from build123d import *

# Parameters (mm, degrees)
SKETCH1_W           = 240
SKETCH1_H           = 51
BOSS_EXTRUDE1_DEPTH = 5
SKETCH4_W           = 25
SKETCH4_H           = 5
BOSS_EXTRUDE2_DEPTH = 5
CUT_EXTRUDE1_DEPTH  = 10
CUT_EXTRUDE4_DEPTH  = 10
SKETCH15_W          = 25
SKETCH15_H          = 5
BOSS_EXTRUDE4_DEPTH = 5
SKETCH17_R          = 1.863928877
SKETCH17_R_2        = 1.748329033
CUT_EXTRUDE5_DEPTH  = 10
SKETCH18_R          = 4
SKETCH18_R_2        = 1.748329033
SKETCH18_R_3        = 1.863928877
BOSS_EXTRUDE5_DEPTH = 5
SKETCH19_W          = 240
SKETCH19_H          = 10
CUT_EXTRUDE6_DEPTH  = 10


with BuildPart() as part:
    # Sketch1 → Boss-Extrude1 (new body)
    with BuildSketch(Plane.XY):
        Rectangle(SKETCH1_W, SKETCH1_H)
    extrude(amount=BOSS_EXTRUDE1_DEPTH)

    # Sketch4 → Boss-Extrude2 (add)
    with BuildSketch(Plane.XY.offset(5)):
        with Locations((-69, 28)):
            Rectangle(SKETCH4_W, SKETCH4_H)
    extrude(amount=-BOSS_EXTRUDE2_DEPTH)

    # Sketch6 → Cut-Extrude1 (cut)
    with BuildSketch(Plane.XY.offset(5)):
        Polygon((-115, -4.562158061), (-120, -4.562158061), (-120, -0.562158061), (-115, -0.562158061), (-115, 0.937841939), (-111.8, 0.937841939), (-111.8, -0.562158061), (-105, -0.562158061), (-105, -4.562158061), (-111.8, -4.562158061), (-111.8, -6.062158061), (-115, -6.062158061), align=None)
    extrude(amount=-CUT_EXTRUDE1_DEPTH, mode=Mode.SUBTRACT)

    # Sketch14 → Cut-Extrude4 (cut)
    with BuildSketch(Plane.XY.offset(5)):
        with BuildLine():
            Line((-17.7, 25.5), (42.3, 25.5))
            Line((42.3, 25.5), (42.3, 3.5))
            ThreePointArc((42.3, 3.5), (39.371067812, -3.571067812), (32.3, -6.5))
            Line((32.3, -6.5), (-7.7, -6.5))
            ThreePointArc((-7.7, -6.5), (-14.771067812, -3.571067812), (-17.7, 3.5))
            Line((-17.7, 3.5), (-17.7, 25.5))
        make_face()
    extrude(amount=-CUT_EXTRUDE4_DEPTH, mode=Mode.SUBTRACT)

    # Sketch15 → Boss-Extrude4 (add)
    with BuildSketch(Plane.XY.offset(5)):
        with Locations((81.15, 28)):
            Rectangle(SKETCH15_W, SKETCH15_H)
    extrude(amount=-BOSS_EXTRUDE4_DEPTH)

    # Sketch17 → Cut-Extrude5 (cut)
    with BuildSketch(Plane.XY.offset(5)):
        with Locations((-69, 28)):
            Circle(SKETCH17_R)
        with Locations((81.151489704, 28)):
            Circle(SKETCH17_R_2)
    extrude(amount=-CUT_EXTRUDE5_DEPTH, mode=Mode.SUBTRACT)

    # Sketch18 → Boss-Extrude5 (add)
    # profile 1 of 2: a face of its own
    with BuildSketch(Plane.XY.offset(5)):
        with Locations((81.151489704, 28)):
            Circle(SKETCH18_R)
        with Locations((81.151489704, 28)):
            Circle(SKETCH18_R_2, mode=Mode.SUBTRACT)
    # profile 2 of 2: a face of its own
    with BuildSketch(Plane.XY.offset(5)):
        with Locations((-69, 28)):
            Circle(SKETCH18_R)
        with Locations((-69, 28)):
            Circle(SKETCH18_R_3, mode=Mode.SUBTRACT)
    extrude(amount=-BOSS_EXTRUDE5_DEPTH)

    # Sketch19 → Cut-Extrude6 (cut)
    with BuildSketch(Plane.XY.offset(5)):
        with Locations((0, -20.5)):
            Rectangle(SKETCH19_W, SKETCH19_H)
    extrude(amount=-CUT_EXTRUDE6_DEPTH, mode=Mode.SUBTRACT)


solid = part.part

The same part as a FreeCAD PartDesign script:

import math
import FreeCAD as App
import Part
import Sketcher
from FreeCAD import Vector
Q = App.Units.Quantity


def add_polygon(sketch, points):
    """Adds a closed chain of lines whose ends are joined by coincident constraints."""
    first, n = sketch.GeometryCount, len(points)
    for a, b in zip(points, points[1:] + points[:1]):
        sketch.addGeometry(Part.LineSegment(App.Vector(*a, 0), App.Vector(*b, 0)), False)
    for i in range(n):
        sketch.addConstraint(Sketcher.Constraint("Coincident", first + i, 2, first + (i + 1) % n, 1))

doc = App.newDocument("Part")
body = doc.addObject("PartDesign::Body", "Body")

sketch1 = body.newObject("Sketcher::SketchObject", "Sketch")
sketch1.AttachmentSupport = (doc.getObject("XY_Plane"), [""])
sketch1.MapMode = "FlatFace"
add_polygon(sketch1, [(-120, 25.5), (-120, -25.5), (120, -25.5), (120, 25.5)])
sketch1.addConstraint(Sketcher.Constraint("Vertical", 0))
sketch1.addConstraint(Sketcher.Constraint("Horizontal", 1))
sketch1.addConstraint(Sketcher.Constraint("Vertical", 2))
sketch1.addConstraint(Sketcher.Constraint("Horizontal", 3))
sketch1.addConstraint(Sketcher.Constraint("Symmetric", 0, 2, 2, 2, -1, 1))
sketch1.addConstraint(Sketcher.Constraint("DistanceX", 1, 1, 1, 2, Q("240 mm")))
sketch1.addConstraint(Sketcher.Constraint("DistanceY", 0, 2, 0, 1, Q("51 mm")))
pad1 = body.newObject("PartDesign::Pad", "Pad")
pad1.Profile = sketch1
pad1.Length = 5

sketch2 = body.newObject("Sketcher::SketchObject", "Sketch001")
sketch2.AttachmentSupport = (doc.getObject("XY_Plane"), [""])
sketch2.MapMode = "FlatFace"
sketch2.AttachmentOffset = App.Placement(Vector(0, 0, 5), App.Rotation())
add_polygon(sketch2, [(-81.5, 30.5), (-81.5, 25.5), (-56.5, 25.5), (-56.5, 30.5)])
sketch2.addConstraint(Sketcher.Constraint("Vertical", 0))
sketch2.addConstraint(Sketcher.Constraint("Horizontal", 1))
sketch2.addConstraint(Sketcher.Constraint("Vertical", 2))
sketch2.addConstraint(Sketcher.Constraint("Horizontal", 3))
sketch2.addConstraint(Sketcher.Constraint("DistanceX", 1, 1, 1, 2, Q("25 mm")))
sketch2.addConstraint(Sketcher.Constraint("DistanceY", 0, 2, 0, 1, Q("5 mm")))
sketch2.addConstraint(Sketcher.Constraint("DistanceX", 0, 2, -1, 1, Q("81.5 mm")))
sketch2.addConstraint(Sketcher.Constraint("DistanceY", -1, 1, 0, 2, Q("25.5 mm")))
pad2 = body.newObject("PartDesign::Pad", "Pad001")
pad2.Profile = sketch2
pad2.Length = 5
pad2.Reversed = True

sketch3 = body.newObject("Sketcher::SketchObject", "Sketch002")
sketch3.AttachmentSupport = (doc.getObject("XY_Plane"), [""])
sketch3.MapMode = "FlatFace"
sketch3.AttachmentOffset = App.Placement(Vector(0, 0, 5), App.Rotation())
add_polygon(sketch3, [(-120, -4.562158), (-115, -4.562158), (-115, -6.062158), (-111.8, -6.062158), (-111.8, -4.562158), (-105, -4.562158), (-105, -0.562158), (-111.8, -0.562158), (-111.8, 0.937842), (-115, 0.937842), (-115, -0.562158), (-120, -0.562158)])
sketch3.addConstraint(Sketcher.Constraint("Horizontal", 0))
sketch3.addConstraint(Sketcher.Constraint("Vertical", 1))
sketch3.addConstraint(Sketcher.Constraint("Horizontal", 2))
sketch3.addConstraint(Sketcher.Constraint("Vertical", 3))
sketch3.addConstraint(Sketcher.Constraint("Horizontal", 4))
sketch3.addConstraint(Sketcher.Constraint("Vertical", 5))
sketch3.addConstraint(Sketcher.Constraint("Horizontal", 6))
sketch3.addConstraint(Sketcher.Constraint("Vertical", 7))
sketch3.addConstraint(Sketcher.Constraint("Horizontal", 8))
sketch3.addConstraint(Sketcher.Constraint("Vertical", 9))
sketch3.addConstraint(Sketcher.Constraint("Horizontal", 10))
sketch3.addConstraint(Sketcher.Constraint("Vertical", 11))
sketch3.addConstraint(Sketcher.Constraint("Horizontal", 0, 2, 3, 2))
sketch3.addConstraint(Sketcher.Constraint("Horizontal", 6, 2, 9, 2))
sketch3.addConstraint(Sketcher.Constraint("Vertical", 3, 2, 6, 2))
sketch3.addConstraint(Sketcher.Constraint("Vertical", 1, 2, 8, 2))
sketch3.addConstraint(Sketcher.Constraint("Equal", 3, 7))
sketch3.addConstraint(Sketcher.Constraint("DistanceX", 0, 1, 0, 2, Q("5 mm")))
sketch3.addConstraint(Sketcher.Constraint("DistanceY", 5, 1, 5, 2, Q("4 mm")))
sketch3.addConstraint(Sketcher.Constraint("DistanceX", 2, 1, 2, 2, Q("3.2 mm")))
sketch3.addConstraint(Sketcher.Constraint("DistanceX", 4, 1, 4, 2, Q("6.8 mm")))
sketch3.addConstraint(Sketcher.Constraint("DistanceY", 1, 2, 1, 1, Q("1.5 mm")))
sketch3.addConstraint(Sketcher.Constraint("DistanceX", 0, 2, -1, 1, Q("115 mm")))
sketch3.addConstraint(Sketcher.Constraint("DistanceY", 0, 2, -1, 1, Q("4.562158 mm")))
pocket1 = body.newObject("PartDesign::Pocket", "Pocket")
pocket1.Profile = sketch3
pocket1.Length = 10

sketch4 = body.newObject("Sketcher::SketchObject", "Sketch003")
sketch4.AttachmentSupport = (doc.getObject("XY_Plane"), [""])
sketch4.MapMode = "FlatFace"
sketch4.AttachmentOffset = App.Placement(Vector(0, 0, 5), App.Rotation())
sketch4.addGeometry(Part.LineSegment(Vector(42.3, 25.5, 0), Vector(-17.7, 25.5, 0)), False)
sketch4.addGeometry(Part.LineSegment(Vector(-17.7, 25.5, 0), Vector(-17.7, 3.5, 0)), False)
sketch4.addGeometry(Part.ArcOfCircle(Part.Circle(Vector(-7.7, 3.5, 0), Vector(0, 0, 1), 10), math.radians(180), math.radians(270)), False)
sketch4.addGeometry(Part.LineSegment(Vector(-7.7, -6.5, 0), Vector(32.3, -6.5, 0)), False)
sketch4.addGeometry(Part.ArcOfCircle(Part.Circle(Vector(32.3, 3.5, 0), Vector(0, 0, 1), 10), math.radians(-90), math.radians(0)), False)
sketch4.addGeometry(Part.LineSegment(Vector(42.3, 3.5, 0), Vector(42.3, 25.5, 0)), False)
sketch4.addConstraint(Sketcher.Constraint("Coincident", 0, 2, 1, 1))
sketch4.addConstraint(Sketcher.Constraint("Tangent", 1, 2, 2, 1))
sketch4.addConstraint(Sketcher.Constraint("Tangent", 2, 2, 3, 1))
sketch4.addConstraint(Sketcher.Constraint("Tangent", 3, 2, 4, 1))
sketch4.addConstraint(Sketcher.Constraint("Tangent", 4, 2, 5, 1))
sketch4.addConstraint(Sketcher.Constraint("Coincident", 5, 2, 0, 1))
sketch4.addConstraint(Sketcher.Constraint("Horizontal", 0))
sketch4.addConstraint(Sketcher.Constraint("Vertical", 1))
sketch4.addConstraint(Sketcher.Constraint("Horizontal", 3))
sketch4.addConstraint(Sketcher.Constraint("Vertical", 5))
sketch4.addConstraint(Sketcher.Constraint("Equal", 2, 4))
sketch4.addConstraint(Sketcher.Constraint("Radius", 2, Q("10 mm")))
sketch4.addConstraint(Sketcher.Constraint("DistanceX", 0, 2, 0, 1, Q("60 mm")))
sketch4.addConstraint(Sketcher.Constraint("DistanceY", 1, 2, 1, 1, Q("22 mm")))
sketch4.addConstraint(Sketcher.Constraint("DistanceX", 2, 3, -1, 1, Q("7.7 mm")))
sketch4.addConstraint(Sketcher.Constraint("DistanceY", -1, 1, 2, 3, Q("3.5 mm")))
pocket2 = body.newObject("PartDesign::Pocket", "Pocket001")
pocket2.Profile = sketch4
pocket2.Length = 10

sketch5 = body.newObject("Sketcher::SketchObject", "Sketch004")
sketch5.AttachmentSupport = (doc.getObject("XY_Plane"), [""])
sketch5.MapMode = "FlatFace"
sketch5.AttachmentOffset = App.Placement(Vector(0, 0, 5), App.Rotation())
add_polygon(sketch5, [(68.65, 30.5), (68.65, 25.5), (93.65, 25.5), (93.65, 30.5)])
sketch5.addConstraint(Sketcher.Constraint("Vertical", 0))
sketch5.addConstraint(Sketcher.Constraint("Horizontal", 1))
sketch5.addConstraint(Sketcher.Constraint("Vertical", 2))
sketch5.addConstraint(Sketcher.Constraint("Horizontal", 3))
sketch5.addConstraint(Sketcher.Constraint("DistanceX", 1, 1, 1, 2, Q("25 mm")))
sketch5.addConstraint(Sketcher.Constraint("DistanceY", 0, 2, 0, 1, Q("5 mm")))
sketch5.addConstraint(Sketcher.Constraint("DistanceY", -1, 1, 0, 2, Q("25.5 mm")))
sketch5.addConstraint(Sketcher.Constraint("DistanceX", -1, 1, 0, 2, Q("68.65 mm")))
pad3 = body.newObject("PartDesign::Pad", "Pad002")
pad3.Profile = sketch5
pad3.Length = 5
pad3.Reversed = True

sketch6 = body.newObject("Sketcher::SketchObject", "Sketch005")
sketch6.AttachmentSupport = (doc.getObject("XY_Plane"), [""])
sketch6.MapMode = "FlatFace"
sketch6.AttachmentOffset = App.Placement(Vector(0, 0, 5), App.Rotation())
sketch6.addGeometry(Part.Circle(Vector(-69, 28, 0), Vector(0, 0, 1), 1.863929), False)
sketch6.addGeometry(Part.Circle(Vector(81.15149, 28, 0), Vector(0, 0, 1), 1.748329), False)
sketch6.addConstraint(Sketcher.Constraint("Horizontal", 0, 3, 1, 3))
sketch6.addConstraint(Sketcher.Constraint("DistanceX", 0, 3, -1, 1, Q("69 mm")))
sketch6.addConstraint(Sketcher.Constraint("DistanceY", -1, 1, 0, 3, Q("28 mm")))
sketch6.addConstraint(Sketcher.Constraint("Diameter", 1, Q("3.496658 mm")))
sketch6.addConstraint(Sketcher.Constraint("Diameter", 0, Q("3.727858 mm")))
sketch6.addConstraint(Sketcher.Constraint("DistanceX", -1, 1, 1, 3, Q("81.15149 mm")))
pocket3 = body.newObject("PartDesign::Pocket", "Pocket002")
pocket3.Profile = sketch6
pocket3.Length = 10

sketch7 = body.newObject("Sketcher::SketchObject", "Sketch006")
sketch7.AttachmentSupport = (doc.getObject("XY_Plane"), [""])
sketch7.MapMode = "FlatFace"
sketch7.AttachmentOffset = App.Placement(Vector(0, 0, 5), App.Rotation())
sketch7.addGeometry(Part.Circle(Vector(81.15149, 28, 0), Vector(0, 0, 1), 4), False)
sketch7.addGeometry(Part.Circle(Vector(81.15149, 28, 0), Vector(0, 0, 1), 1.748329), False)
sketch7.addGeometry(Part.Circle(Vector(-69, 28, 0), Vector(0, 0, 1), 4), False)
sketch7.addGeometry(Part.Circle(Vector(-69, 28, 0), Vector(0, 0, 1), 1.863929), False)
sketch7.addConstraint(Sketcher.Constraint("Coincident", 1, 3, 0, 3))
sketch7.addConstraint(Sketcher.Constraint("Coincident", 3, 3, 2, 3))
sketch7.addConstraint(Sketcher.Constraint("Equal", 0, 2))
sketch7.addConstraint(Sketcher.Constraint("Horizontal", 1, 3, 2, 3))
sketch7.addConstraint(Sketcher.Constraint("Diameter", 0, Q("8 mm")))
sketch7.addConstraint(Sketcher.Constraint("DistanceY", -1, 1, 0, 3, Q("28 mm")))
sketch7.addConstraint(Sketcher.Constraint("DistanceX", 2, 3, -1, 1, Q("69 mm")))
sketch7.addConstraint(Sketcher.Constraint("Diameter", 1, Q("3.496658 mm")))
sketch7.addConstraint(Sketcher.Constraint("Diameter", 3, Q("3.727858 mm")))
sketch7.addConstraint(Sketcher.Constraint("DistanceX", -1, 1, 0, 3, Q("81.15149 mm")))
pad4 = body.newObject("PartDesign::Pad", "Pad003")
pad4.Profile = sketch7
pad4.Length = 5
pad4.Reversed = True

sketch8 = body.newObject("Sketcher::SketchObject", "Sketch007")
sketch8.AttachmentSupport = (doc.getObject("XY_Plane"), [""])
sketch8.MapMode = "FlatFace"
sketch8.AttachmentOffset = App.Placement(Vector(0, 0, 5), App.Rotation())
add_polygon(sketch8, [(-120, -15.5), (-120, -25.5), (120, -25.5), (120, -15.5)])
sketch8.addConstraint(Sketcher.Constraint("Vertical", 0))
sketch8.addConstraint(Sketcher.Constraint("Horizontal", 1))
sketch8.addConstraint(Sketcher.Constraint("Vertical", 2))
sketch8.addConstraint(Sketcher.Constraint("Horizontal", 3))
sketch8.addConstraint(Sketcher.Constraint("DistanceX", 1, 1, 1, 2, Q("240 mm")))
sketch8.addConstraint(Sketcher.Constraint("DistanceY", 0, 2, 0, 1, Q("10 mm")))
sketch8.addConstraint(Sketcher.Constraint("DistanceX", 0, 2, -1, 1, Q("120 mm")))
sketch8.addConstraint(Sketcher.Constraint("DistanceY", 0, 2, -1, 1, Q("25.5 mm")))
pocket4 = body.newObject("PartDesign::Pocket", "Pocket003")
pocket4.Profile = sketch8
pocket4.Length = 10

doc.recompute()
